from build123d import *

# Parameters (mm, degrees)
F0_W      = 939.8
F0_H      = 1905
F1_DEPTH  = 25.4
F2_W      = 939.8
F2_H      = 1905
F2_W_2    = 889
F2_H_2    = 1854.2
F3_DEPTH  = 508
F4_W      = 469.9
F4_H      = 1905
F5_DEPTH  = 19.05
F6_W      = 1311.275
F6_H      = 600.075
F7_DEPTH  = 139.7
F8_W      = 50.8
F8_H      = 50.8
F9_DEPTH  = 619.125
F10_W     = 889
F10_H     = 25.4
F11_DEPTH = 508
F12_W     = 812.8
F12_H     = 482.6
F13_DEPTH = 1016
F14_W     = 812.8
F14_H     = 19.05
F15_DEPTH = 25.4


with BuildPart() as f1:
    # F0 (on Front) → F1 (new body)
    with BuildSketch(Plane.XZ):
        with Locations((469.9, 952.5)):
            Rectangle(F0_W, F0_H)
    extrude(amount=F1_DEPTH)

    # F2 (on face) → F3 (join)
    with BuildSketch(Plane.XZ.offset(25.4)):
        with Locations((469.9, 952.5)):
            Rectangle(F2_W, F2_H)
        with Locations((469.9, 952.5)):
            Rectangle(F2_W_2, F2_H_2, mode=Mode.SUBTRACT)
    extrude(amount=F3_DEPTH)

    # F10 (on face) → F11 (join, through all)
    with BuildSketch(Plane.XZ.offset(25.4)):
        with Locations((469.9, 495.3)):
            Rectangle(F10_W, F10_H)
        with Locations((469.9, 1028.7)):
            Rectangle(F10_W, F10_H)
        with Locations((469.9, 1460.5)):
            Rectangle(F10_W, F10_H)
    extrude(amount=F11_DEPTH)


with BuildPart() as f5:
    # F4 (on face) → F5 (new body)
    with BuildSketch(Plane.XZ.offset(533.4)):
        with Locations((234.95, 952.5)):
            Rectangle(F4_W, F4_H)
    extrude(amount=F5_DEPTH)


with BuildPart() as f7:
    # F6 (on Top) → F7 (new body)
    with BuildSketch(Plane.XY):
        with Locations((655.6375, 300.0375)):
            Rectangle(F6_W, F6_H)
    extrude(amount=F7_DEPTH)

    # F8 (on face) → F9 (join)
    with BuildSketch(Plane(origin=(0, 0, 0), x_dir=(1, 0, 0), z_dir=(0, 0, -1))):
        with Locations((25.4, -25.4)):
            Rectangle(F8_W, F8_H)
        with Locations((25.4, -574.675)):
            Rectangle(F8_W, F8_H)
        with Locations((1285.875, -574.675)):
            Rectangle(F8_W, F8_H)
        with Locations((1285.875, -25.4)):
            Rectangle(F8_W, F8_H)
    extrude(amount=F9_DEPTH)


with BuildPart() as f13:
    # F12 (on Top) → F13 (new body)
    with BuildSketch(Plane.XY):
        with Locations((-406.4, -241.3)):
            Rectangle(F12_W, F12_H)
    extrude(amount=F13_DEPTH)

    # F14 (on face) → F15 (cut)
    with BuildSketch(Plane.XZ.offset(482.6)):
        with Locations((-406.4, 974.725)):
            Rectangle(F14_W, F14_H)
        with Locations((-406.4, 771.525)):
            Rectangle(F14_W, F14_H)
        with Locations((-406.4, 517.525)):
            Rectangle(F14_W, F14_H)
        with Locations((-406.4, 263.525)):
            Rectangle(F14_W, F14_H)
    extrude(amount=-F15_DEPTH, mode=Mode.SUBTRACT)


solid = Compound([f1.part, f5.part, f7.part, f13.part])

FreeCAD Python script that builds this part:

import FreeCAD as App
import Part
import Sketcher
Q = App.Units.Quantity


def add_polygon(sketch, points):
    """Adds a closed chain of lines whose ends are joined by coincident constraints."""
    first, n = sketch.GeometryCount, len(points)
    for a, b in zip(points, points[1:] + points[:1]):
        sketch.addGeometry(Part.LineSegment(App.Vector(*a, 0), App.Vector(*b, 0)), False)
    for i in range(n):
        sketch.addConstraint(Sketcher.Constraint("Coincident", first + i, 2, first + (i + 1) % n, 1))

doc = App.newDocument("Part")
body = doc.addObject("PartDesign::Body", "Body")

# Sketch on XZ plane
sketch1 = body.newObject("Sketcher::SketchObject", "Sketch")
sketch1.AttachmentSupport = (doc.getObject("XZ_Plane"), [""])
sketch1.MapMode = "FlatFace"
add_polygon(sketch1, [(0, 1905), (0, 0), (939.8, 0), (939.8, 1905)])  # lines 0-3
sketch1.addConstraint(Sketcher.Constraint("Vertical", 0))
sketch1.addConstraint(Sketcher.Constraint("Horizontal", 1))
sketch1.addConstraint(Sketcher.Constraint("Vertical", 2))
sketch1.addConstraint(Sketcher.Constraint("Horizontal", 3))
sketch1.addConstraint(Sketcher.Constraint("Coincident", 0, 2, -1, 1))
sketch1.addConstraint(Sketcher.Constraint("DistanceX", 1, 1, 1, 2, Q("37 in")))
sketch1.addConstraint(Sketcher.Constraint("DistanceY", 0, 2, 0, 1, Q("75 in")))
pad1 = body.newObject("PartDesign::Pad", "Pad")
pad1.Profile = sketch1
pad1.Length = Q("1 in")

# Sketch on XZ plane
sketch2 = body.newObject("Sketcher::SketchObject", "Sketch001")
sketch2.AttachmentSupport = (doc.getObject("XZ_Plane"), [""])
sketch2.MapMode = "FlatFace"
sketch2.AttachmentOffset = App.Placement(App.Vector(0, 0, 1 * 25.4), App.Rotation())
add_polygon(sketch2, [(0, 1905), (0, 0), (939.8, 0), (939.8, 1905)])  # lines 0-3
add_polygon(sketch2, [(914.4, 25.4), (25.4, 25.4), (25.4, 1879.6), (914.4, 1879.6)])  # lines 4-7
sketch2.addConstraint(Sketcher.Constraint("Vertical", 0))
sketch2.addConstraint(Sketcher.Constraint("Horizontal", 1))
sketch2.addConstraint(Sketcher.Constraint("Vertical", 2))
sketch2.addConstraint(Sketcher.Constraint("Horizontal", 3))
sketch2.addConstraint(Sketcher.Constraint("Horizontal", 4))
sketch2.addConstraint(Sketcher.Constraint("Vertical", 5))
sketch2.addConstraint(Sketcher.Constraint("Horizontal", 6))
sketch2.addConstraint(Sketcher.Constraint("Vertical", 7))
sketch2.addConstraint(Sketcher.Constraint("Coincident", 0, 2, -1, 1))
sketch2.addConstraint(Sketcher.Constraint("DistanceX", 1, 1, 1, 2, Q("37 in")))
sketch2.addConstraint(Sketcher.Constraint("DistanceX", 4, 2, 4, 1, Q("35 in")))
sketch2.addConstraint(Sketcher.Constraint("DistanceY", 0, 2, 0, 1, Q("75 in")))
sketch2.addConstraint(Sketcher.Constraint("DistanceY", 5, 1, 5, 2, Q("73 in")))
sketch2.addConstraint(Sketcher.Constraint("DistanceX", -1, 1, 4, 2, Q("1 in")))
sketch2.addConstraint(Sketcher.Constraint("DistanceY", -1, 1, 4, 2, Q("1 in")))
pad2 = body.newObject("PartDesign::Pad", "Pad001")
pad2.Profile = sketch2
pad2.Length = Q("20 in")

# Sketch on XZ plane
sketch3 = body.newObject("Sketcher::SketchObject", "Sketch002")
sketch3.AttachmentSupport = (doc.getObject("XZ_Plane"), [""])
sketch3.MapMode = "FlatFace"
sketch3.AttachmentOffset = App.Placement(App.Vector(0, 0, 1 * 25.4), App.Rotation())
add_polygon(sketch3, [(25.4, 508), (25.4, 482.6), (914.4, 482.6), (914.4, 508)])  # lines 0-3
add_polygon(sketch3, [(25.4, 1041.4), (25.4, 1016), (914.4, 1016), (914.4, 1041.4)])  # lines 4-7
add_polygon(sketch3, [(25.4, 1473.2), (25.4, 1447.8), (914.4, 1447.8), (914.4, 1473.2)])  # lines 8-11
sketch3.addConstraint(Sketcher.Constraint("Vertical", 0))
sketch3.addConstraint(Sketcher.Constraint("Horizontal", 1))
sketch3.addConstraint(Sketcher.Constraint("Vertical", 2))
sketch3.addConstraint(Sketcher.Constraint("Horizontal", 3))
sketch3.addConstraint(Sketcher.Constraint("Vertical", 4))
sketch3.addConstraint(Sketcher.Constraint("Horizontal", 5))
sketch3.addConstraint(Sketcher.Constraint("Vertical", 6))
sketch3.addConstraint(Sketcher.Constraint("Horizontal", 7))
sketch3.addConstraint(Sketcher.Constraint("Vertical", 8))
sketch3.addConstraint(Sketcher.Constraint("Horizontal", 9))
sketch3.addConstraint(Sketcher.Constraint("Vertical", 10))
sketch3.addConstraint(Sketcher.Constraint("Horizontal", 11))
sketch3.addConstraint(Sketcher.Constraint("Vertical", 3, 2, 4, 2))
sketch3.addConstraint(Sketcher.Constraint("Vertical", 2, 2, 5, 2))
sketch3.addConstraint(Sketcher.Constraint("Vertical", 7, 2, 8, 2))
sketch3.addConstraint(Sketcher.Constraint("Vertical", 6, 2, 9, 2))
sketch3.addConstraint(Sketcher.Constraint("Equal", 2, 4))
sketch3.addConstraint(Sketcher.Constraint("Equal", 6, 8))
sketch3.addConstraint(Sketcher.Constraint("DistanceX", 1, 1, 1, 2, Q("35 in")))
sketch3.addConstraint(Sketcher.Constraint("DistanceY", 0, 2, 0, 1, Q("1 in")))
sketch3.addConstraint(Sketcher.Constraint("DistanceX", -1, 1, 0, 2, Q("1 in")))
sketch3.addConstraint(Sketcher.Constraint("DistanceY", -1, 1, 0, 2, Q("19 in")))
sketch3.addConstraint(Sketcher.Constraint("DistanceY", -1, 1, 4, 2, Q("40 in")))
sketch3.addConstraint(Sketcher.Constraint("DistanceY", -1, 1, 8, 2, Q("57 in")))
pad3 = body.newObject("PartDesign::Pad", "Pad002")
pad3.Profile = sketch3
pad3.Length = Q("20 in")
body2 = doc.addObject("PartDesign::Body", "Body001")

# Sketch on XZ plane
sketch4 = body2.newObject("Sketcher::SketchObject", "Sketch003")
sketch4.AttachmentSupport = (doc.getObject("XZ_Plane001"), [""])
sketch4.MapMode = "FlatFace"
sketch4.AttachmentOffset = App.Placement(App.Vector(0, 0, 21 * 25.4), App.Rotation())
add_polygon(sketch4, [(0, 1905), (0, 0), (469.9, 0), (469.9, 1905)])  # lines 0-3
sketch4.addConstraint(Sketcher.Constraint("Vertical", 0))
sketch4.addConstraint(Sketcher.Constraint("Horizontal", 1))
sketch4.addConstraint(Sketcher.Constraint("Vertical", 2))
sketch4.addConstraint(Sketcher.Constraint("Horizontal", 3))
sketch4.addConstraint(Sketcher.Constraint("Coincident", 0, 2, -1, 1))
sketch4.addConstraint(Sketcher.Constraint("DistanceY", 0, 2, 0, 1, Q("75 in")))
sketch4.addConstraint(Sketcher.Constraint("DistanceX", 1, 1, 1, 2, Q("18.5 in")))
pad4 = body2.newObject("PartDesign::Pad", "Pad003")
pad4.Profile = sketch4
pad4.Length = Q("0.75 in")
body3 = doc.addObject("PartDesign::Body", "Body002")

# Sketch on XY plane
sketch5 = body3.newObject("Sketcher::SketchObject", "Sketch004")
sketch5.AttachmentSupport = (doc.getObject("XY_Plane002"), [""])
sketch5.MapMode = "FlatFace"
add_polygon(sketch5, [(0, 600.075), (0, 0), (1311.275, 0), (1311.275, 600.075)])  # lines 0-3
sketch5.addConstraint(Sketcher.Constraint("Vertical", 0))
sketch5.addConstraint(Sketcher.Constraint("Horizontal", 1))
sketch5.addConstraint(Sketcher.Constraint("Vertical", 2))
sketch5.addConstraint(Sketcher.Constraint("Horizontal", 3))
sketch5.addConstraint(Sketcher.Constraint("Coincident", 0, 2, -1, 1))
sketch5.addConstraint(Sketcher.Constraint("DistanceX", 1, 1, 1, 2, Q("51.625 in")))
sketch5.addConstraint(Sketcher.Constraint("DistanceY", 0, 2, 0, 1, Q("23.625 in")))
pad5 = body3.newObject("PartDesign::Pad", "Pad004")
pad5.Profile = sketch5
pad5.Length = Q("5.5 in")

# Sketch on XY plane
sketch6 = body3.newObject("Sketcher::SketchObject", "Sketch005")
sketch6.AttachmentSupport = (doc.getObject("XY_Plane002"), [""])
sketch6.MapMode = "FlatFace"
add_polygon(sketch6, [(0, 0), (0, 50.8), (50.8, 50.8), (50.8, 0)])  # lines 0-3
add_polygon(sketch6, [(0, 549.275), (0, 600.075), (50.8, 600.075), (50.8, 549.275)])  # lines 4-7
add_polygon(sketch6, [(1260.475, 549.275), (1260.475, 600.075), (1311.275, 600.075), (1311.275, 549.275)])  # lines 8-11
add_polygon(sketch6, [(1260.475, 0), (1260.475, 50.8), (1311.275, 50.8), (1311.275, 0)])  # lines 12-15
sketch6.addConstraint(Sketcher.Constraint("Vertical", 0))
sketch6.addConstraint(Sketcher.Constraint("Horizontal", 1))
sketch6.addConstraint(Sketcher.Constraint("Vertical", 2))
sketch6.addConstraint(Sketcher.Constraint("Horizontal", 3))
sketch6.addConstraint(Sketcher.Constraint("Vertical", 4))
sketch6.addConstraint(Sketcher.Constraint("Horizontal", 5))
sketch6.addConstraint(Sketcher.Constraint("Vertical", 6))
sketch6.addConstraint(Sketcher.Constraint("Horizontal", 7))
sketch6.addConstraint(Sketcher.Constraint("Vertical", 8))
sketch6.addConstraint(Sketcher.Constraint("Horizontal", 9))
sketch6.addConstraint(Sketcher.Constraint("Vertical", 10))
sketch6.addConstraint(Sketcher.Constraint("Horizontal", 11))
sketch6.addConstraint(Sketcher.Constraint("Vertical", 12))
sketch6.addConstraint(Sketcher.Constraint("Horizontal", 13))
sketch6.addConstraint(Sketcher.Constraint("Vertical", 14))
sketch6.addConstraint(Sketcher.Constraint("Horizontal", 15))
sketch6.addConstraint(Sketcher.Constraint("Coincident", 3, 2, -1, 1))
sketch6.addConstraint(Sketcher.Constraint("PointOnObject", 4, 2, -2))
sketch6.addConstraint(Sketcher.Constraint("PointOnObject", 14, 2, -1))
sketch6.addConstraint(Sketcher.Constraint("Horizontal", 5, 2, 8, 2))
sketch6.addConstraint(Sketcher.Constraint("Horizontal", 7, 2, 10, 2))
sketch6.addConstraint(Sketcher.Constraint("Horizontal", 1, 2, 12, 2))
sketch6.addConstraint(Sketcher.Constraint("Vertical", 2, 2, 5, 2))
sketch6.addConstraint(Sketcher.Constraint("Vertical", 11, 2, 12, 2))
sketch6.addConstraint(Sketcher.Constraint("Vertical", 10, 2, 13, 2))
sketch6.addConstraint(Sketcher.Constraint("Equal", 7, 9))
sketch6.addConstraint(Sketcher.Constraint("Equal", 15, 0))
sketch6.addConstraint(Sketcher.Constraint("Equal", 2, 4))
sketch6.addConstraint(Sketcher.Constraint("DistanceX", 1, 1, 1, 2, Q("2 in")))
sketch6.addConstraint(Sketcher.Constraint("DistanceY", -1, 1, 4, 2, Q("23.625 in")))
sketch6.addConstraint(Sketcher.Constraint("DistanceX", -1, 1, 8, 2, Q("49.625 in")))
pad6 = body3.newObject("PartDesign::Pad", "Pad005")
pad6.Profile = sketch6
pad6.Length = Q("24.375 in")
pad6.Reversed = True
body4 = doc.addObject("PartDesign::Body", "Body003")

# Sketch on XY plane
sketch7 = body4.newObject("Sketcher::SketchObject", "Sketch006")
sketch7.AttachmentSupport = (doc.getObject("XY_Plane003"), [""])
sketch7.MapMode = "FlatFace"
add_polygon(sketch7, [(-812.8, 0), (-812.8, -482.6), (0, -482.6), (0, 0)])  # lines 0-3
sketch7.addConstraint(Sketcher.Constraint("Vertical", 0))
sketch7.addConstraint(Sketcher.Constraint("Horizontal", 1))
sketch7.addConstraint(Sketcher.Constraint("Vertical", 2))
sketch7.addConstraint(Sketcher.Constraint("Horizontal", 3))
sketch7.addConstraint(Sketcher.Constraint("Coincident", 2, 2, -1, 1))
sketch7.addConstraint(Sketcher.Constraint("DistanceX", 1, 1, 1, 2, Q("32 in")))
sketch7.addConstraint(Sketcher.Constraint("DistanceY", 0, 2, 0, 1, Q("19 in")))
pad7 = body4.newObject("PartDesign::Pad", "Pad006")
pad7.Profile = sketch7
pad7.Length = Q("40 in")

# Sketch on XZ plane
sketch8 = body4.newObject("Sketcher::SketchObject", "Sketch007")
sketch8.AttachmentSupport = (doc.getObject("XZ_Plane003"), [""])
sketch8.MapMode = "FlatFace"
sketch8.AttachmentOffset = App.Placement(App.Vector(0, 0, 19 * 25.4), App.Rotation())
add_polygon(sketch8, [(-812.8, 984.25), (-812.8, 965.2), (0, 965.2), (0, 984.25)])  # lines 0-3
add_polygon(sketch8, [(-812.8, 781.05), (-812.8, 762), (0, 762), (0, 781.05)])  # lines 4-7
add_polygon(sketch8, [(-812.8, 527.05), (-812.8, 508), (0, 508), (0, 527.05)])  # lines 8-11
add_polygon(sketch8, [(-812.8, 273.05), (-812.8, 254), (0, 254), (0, 273.05)])  # lines 12-15
sketch8.addConstraint(Sketcher.Constraint("Vertical", 0))
sketch8.addConstraint(Sketcher.Constraint("Horizontal", 1))
sketch8.addConstraint(Sketcher.Constraint("Vertical", 2))
sketch8.addConstraint(Sketcher.Constraint("Horizontal", 3))
sketch8.addConstraint(Sketcher.Constraint("Vertical", 4))
sketch8.addConstraint(Sketcher.Constraint("Horizontal", 5))
sketch8.addConstraint(Sketcher.Constraint("Vertical", 6))
sketch8.addConstraint(Sketcher.Constraint("Horizontal", 7))
sketch8.addConstraint(Sketcher.Constraint("Vertical", 8))
sketch8.addConstraint(Sketcher.Constraint("Horizontal", 9))
sketch8.addConstraint(Sketcher.Constraint("Vertical", 10))
sketch8.addConstraint(Sketcher.Constraint("Horizontal", 11))
sketch8.addConstraint(Sketcher.Constraint("Vertical", 12))
sketch8.addConstraint(Sketcher.Constraint("Horizontal", 13))
sketch8.addConstraint(Sketcher.Constraint("Vertical", 14))
sketch8.addConstraint(Sketcher.Constraint("Horizontal", 15))
sketch8.addConstraint(Sketcher.Constraint("PointOnObject", 1, 2, -2))
sketch8.addConstraint(Sketcher.Constraint("PointOnObject", 5, 2, -2))
sketch8.addConstraint(Sketcher.Constraint("PointOnObject", 9, 2, -2))
sketch8.addConstraint(Sketcher.Constraint("PointOnObject", 13, 2, -2))
sketch8.addConstraint(Sketcher.Constraint("Vertical", 3, 2, 4, 2))
sketch8.addConstraint(Sketcher.Constraint("Vertical", 7, 2, 8, 2))
sketch8.addConstraint(Sketcher.Constraint("Vertical", 11, 2, 12, 2))
sketch8.addConstraint(Sketcher.Constraint("Equal", 2, 4))
sketch8.addConstraint(Sketcher.Constraint("Equal", 6, 8))
sketch8.addConstraint(Sketcher.Constraint("Equal", 10, 12))
sketch8.addConstraint(Sketcher.Constraint("DistanceX", 1, 1, 1, 2, Q("32 in")))
sketch8.addConstraint(Sketcher.Constraint("DistanceY", -1, 1, 0, 2, Q("38 in")))
sketch8.addConstraint(Sketcher.Constraint("DistanceY", -1, 1, 4, 2, Q("30 in")))
sketch8.addConstraint(Sketcher.Constraint("DistanceY", -1, 1, 8, 2, Q("20 in")))
sketch8.addConstraint(Sketcher.Constraint("DistanceY", -1, 1, 12, 2, Q("10 in")))
sketch8.addConstraint(Sketcher.Constraint("DistanceY", 0, 2, 0, 1, Q("0.75 in")))
pocket1 = body4.newObject("PartDesign::Pocket", "Pocket")
pocket1.Profile = sketch8
pocket1.Length = Q("1 in")

doc.recompute()
